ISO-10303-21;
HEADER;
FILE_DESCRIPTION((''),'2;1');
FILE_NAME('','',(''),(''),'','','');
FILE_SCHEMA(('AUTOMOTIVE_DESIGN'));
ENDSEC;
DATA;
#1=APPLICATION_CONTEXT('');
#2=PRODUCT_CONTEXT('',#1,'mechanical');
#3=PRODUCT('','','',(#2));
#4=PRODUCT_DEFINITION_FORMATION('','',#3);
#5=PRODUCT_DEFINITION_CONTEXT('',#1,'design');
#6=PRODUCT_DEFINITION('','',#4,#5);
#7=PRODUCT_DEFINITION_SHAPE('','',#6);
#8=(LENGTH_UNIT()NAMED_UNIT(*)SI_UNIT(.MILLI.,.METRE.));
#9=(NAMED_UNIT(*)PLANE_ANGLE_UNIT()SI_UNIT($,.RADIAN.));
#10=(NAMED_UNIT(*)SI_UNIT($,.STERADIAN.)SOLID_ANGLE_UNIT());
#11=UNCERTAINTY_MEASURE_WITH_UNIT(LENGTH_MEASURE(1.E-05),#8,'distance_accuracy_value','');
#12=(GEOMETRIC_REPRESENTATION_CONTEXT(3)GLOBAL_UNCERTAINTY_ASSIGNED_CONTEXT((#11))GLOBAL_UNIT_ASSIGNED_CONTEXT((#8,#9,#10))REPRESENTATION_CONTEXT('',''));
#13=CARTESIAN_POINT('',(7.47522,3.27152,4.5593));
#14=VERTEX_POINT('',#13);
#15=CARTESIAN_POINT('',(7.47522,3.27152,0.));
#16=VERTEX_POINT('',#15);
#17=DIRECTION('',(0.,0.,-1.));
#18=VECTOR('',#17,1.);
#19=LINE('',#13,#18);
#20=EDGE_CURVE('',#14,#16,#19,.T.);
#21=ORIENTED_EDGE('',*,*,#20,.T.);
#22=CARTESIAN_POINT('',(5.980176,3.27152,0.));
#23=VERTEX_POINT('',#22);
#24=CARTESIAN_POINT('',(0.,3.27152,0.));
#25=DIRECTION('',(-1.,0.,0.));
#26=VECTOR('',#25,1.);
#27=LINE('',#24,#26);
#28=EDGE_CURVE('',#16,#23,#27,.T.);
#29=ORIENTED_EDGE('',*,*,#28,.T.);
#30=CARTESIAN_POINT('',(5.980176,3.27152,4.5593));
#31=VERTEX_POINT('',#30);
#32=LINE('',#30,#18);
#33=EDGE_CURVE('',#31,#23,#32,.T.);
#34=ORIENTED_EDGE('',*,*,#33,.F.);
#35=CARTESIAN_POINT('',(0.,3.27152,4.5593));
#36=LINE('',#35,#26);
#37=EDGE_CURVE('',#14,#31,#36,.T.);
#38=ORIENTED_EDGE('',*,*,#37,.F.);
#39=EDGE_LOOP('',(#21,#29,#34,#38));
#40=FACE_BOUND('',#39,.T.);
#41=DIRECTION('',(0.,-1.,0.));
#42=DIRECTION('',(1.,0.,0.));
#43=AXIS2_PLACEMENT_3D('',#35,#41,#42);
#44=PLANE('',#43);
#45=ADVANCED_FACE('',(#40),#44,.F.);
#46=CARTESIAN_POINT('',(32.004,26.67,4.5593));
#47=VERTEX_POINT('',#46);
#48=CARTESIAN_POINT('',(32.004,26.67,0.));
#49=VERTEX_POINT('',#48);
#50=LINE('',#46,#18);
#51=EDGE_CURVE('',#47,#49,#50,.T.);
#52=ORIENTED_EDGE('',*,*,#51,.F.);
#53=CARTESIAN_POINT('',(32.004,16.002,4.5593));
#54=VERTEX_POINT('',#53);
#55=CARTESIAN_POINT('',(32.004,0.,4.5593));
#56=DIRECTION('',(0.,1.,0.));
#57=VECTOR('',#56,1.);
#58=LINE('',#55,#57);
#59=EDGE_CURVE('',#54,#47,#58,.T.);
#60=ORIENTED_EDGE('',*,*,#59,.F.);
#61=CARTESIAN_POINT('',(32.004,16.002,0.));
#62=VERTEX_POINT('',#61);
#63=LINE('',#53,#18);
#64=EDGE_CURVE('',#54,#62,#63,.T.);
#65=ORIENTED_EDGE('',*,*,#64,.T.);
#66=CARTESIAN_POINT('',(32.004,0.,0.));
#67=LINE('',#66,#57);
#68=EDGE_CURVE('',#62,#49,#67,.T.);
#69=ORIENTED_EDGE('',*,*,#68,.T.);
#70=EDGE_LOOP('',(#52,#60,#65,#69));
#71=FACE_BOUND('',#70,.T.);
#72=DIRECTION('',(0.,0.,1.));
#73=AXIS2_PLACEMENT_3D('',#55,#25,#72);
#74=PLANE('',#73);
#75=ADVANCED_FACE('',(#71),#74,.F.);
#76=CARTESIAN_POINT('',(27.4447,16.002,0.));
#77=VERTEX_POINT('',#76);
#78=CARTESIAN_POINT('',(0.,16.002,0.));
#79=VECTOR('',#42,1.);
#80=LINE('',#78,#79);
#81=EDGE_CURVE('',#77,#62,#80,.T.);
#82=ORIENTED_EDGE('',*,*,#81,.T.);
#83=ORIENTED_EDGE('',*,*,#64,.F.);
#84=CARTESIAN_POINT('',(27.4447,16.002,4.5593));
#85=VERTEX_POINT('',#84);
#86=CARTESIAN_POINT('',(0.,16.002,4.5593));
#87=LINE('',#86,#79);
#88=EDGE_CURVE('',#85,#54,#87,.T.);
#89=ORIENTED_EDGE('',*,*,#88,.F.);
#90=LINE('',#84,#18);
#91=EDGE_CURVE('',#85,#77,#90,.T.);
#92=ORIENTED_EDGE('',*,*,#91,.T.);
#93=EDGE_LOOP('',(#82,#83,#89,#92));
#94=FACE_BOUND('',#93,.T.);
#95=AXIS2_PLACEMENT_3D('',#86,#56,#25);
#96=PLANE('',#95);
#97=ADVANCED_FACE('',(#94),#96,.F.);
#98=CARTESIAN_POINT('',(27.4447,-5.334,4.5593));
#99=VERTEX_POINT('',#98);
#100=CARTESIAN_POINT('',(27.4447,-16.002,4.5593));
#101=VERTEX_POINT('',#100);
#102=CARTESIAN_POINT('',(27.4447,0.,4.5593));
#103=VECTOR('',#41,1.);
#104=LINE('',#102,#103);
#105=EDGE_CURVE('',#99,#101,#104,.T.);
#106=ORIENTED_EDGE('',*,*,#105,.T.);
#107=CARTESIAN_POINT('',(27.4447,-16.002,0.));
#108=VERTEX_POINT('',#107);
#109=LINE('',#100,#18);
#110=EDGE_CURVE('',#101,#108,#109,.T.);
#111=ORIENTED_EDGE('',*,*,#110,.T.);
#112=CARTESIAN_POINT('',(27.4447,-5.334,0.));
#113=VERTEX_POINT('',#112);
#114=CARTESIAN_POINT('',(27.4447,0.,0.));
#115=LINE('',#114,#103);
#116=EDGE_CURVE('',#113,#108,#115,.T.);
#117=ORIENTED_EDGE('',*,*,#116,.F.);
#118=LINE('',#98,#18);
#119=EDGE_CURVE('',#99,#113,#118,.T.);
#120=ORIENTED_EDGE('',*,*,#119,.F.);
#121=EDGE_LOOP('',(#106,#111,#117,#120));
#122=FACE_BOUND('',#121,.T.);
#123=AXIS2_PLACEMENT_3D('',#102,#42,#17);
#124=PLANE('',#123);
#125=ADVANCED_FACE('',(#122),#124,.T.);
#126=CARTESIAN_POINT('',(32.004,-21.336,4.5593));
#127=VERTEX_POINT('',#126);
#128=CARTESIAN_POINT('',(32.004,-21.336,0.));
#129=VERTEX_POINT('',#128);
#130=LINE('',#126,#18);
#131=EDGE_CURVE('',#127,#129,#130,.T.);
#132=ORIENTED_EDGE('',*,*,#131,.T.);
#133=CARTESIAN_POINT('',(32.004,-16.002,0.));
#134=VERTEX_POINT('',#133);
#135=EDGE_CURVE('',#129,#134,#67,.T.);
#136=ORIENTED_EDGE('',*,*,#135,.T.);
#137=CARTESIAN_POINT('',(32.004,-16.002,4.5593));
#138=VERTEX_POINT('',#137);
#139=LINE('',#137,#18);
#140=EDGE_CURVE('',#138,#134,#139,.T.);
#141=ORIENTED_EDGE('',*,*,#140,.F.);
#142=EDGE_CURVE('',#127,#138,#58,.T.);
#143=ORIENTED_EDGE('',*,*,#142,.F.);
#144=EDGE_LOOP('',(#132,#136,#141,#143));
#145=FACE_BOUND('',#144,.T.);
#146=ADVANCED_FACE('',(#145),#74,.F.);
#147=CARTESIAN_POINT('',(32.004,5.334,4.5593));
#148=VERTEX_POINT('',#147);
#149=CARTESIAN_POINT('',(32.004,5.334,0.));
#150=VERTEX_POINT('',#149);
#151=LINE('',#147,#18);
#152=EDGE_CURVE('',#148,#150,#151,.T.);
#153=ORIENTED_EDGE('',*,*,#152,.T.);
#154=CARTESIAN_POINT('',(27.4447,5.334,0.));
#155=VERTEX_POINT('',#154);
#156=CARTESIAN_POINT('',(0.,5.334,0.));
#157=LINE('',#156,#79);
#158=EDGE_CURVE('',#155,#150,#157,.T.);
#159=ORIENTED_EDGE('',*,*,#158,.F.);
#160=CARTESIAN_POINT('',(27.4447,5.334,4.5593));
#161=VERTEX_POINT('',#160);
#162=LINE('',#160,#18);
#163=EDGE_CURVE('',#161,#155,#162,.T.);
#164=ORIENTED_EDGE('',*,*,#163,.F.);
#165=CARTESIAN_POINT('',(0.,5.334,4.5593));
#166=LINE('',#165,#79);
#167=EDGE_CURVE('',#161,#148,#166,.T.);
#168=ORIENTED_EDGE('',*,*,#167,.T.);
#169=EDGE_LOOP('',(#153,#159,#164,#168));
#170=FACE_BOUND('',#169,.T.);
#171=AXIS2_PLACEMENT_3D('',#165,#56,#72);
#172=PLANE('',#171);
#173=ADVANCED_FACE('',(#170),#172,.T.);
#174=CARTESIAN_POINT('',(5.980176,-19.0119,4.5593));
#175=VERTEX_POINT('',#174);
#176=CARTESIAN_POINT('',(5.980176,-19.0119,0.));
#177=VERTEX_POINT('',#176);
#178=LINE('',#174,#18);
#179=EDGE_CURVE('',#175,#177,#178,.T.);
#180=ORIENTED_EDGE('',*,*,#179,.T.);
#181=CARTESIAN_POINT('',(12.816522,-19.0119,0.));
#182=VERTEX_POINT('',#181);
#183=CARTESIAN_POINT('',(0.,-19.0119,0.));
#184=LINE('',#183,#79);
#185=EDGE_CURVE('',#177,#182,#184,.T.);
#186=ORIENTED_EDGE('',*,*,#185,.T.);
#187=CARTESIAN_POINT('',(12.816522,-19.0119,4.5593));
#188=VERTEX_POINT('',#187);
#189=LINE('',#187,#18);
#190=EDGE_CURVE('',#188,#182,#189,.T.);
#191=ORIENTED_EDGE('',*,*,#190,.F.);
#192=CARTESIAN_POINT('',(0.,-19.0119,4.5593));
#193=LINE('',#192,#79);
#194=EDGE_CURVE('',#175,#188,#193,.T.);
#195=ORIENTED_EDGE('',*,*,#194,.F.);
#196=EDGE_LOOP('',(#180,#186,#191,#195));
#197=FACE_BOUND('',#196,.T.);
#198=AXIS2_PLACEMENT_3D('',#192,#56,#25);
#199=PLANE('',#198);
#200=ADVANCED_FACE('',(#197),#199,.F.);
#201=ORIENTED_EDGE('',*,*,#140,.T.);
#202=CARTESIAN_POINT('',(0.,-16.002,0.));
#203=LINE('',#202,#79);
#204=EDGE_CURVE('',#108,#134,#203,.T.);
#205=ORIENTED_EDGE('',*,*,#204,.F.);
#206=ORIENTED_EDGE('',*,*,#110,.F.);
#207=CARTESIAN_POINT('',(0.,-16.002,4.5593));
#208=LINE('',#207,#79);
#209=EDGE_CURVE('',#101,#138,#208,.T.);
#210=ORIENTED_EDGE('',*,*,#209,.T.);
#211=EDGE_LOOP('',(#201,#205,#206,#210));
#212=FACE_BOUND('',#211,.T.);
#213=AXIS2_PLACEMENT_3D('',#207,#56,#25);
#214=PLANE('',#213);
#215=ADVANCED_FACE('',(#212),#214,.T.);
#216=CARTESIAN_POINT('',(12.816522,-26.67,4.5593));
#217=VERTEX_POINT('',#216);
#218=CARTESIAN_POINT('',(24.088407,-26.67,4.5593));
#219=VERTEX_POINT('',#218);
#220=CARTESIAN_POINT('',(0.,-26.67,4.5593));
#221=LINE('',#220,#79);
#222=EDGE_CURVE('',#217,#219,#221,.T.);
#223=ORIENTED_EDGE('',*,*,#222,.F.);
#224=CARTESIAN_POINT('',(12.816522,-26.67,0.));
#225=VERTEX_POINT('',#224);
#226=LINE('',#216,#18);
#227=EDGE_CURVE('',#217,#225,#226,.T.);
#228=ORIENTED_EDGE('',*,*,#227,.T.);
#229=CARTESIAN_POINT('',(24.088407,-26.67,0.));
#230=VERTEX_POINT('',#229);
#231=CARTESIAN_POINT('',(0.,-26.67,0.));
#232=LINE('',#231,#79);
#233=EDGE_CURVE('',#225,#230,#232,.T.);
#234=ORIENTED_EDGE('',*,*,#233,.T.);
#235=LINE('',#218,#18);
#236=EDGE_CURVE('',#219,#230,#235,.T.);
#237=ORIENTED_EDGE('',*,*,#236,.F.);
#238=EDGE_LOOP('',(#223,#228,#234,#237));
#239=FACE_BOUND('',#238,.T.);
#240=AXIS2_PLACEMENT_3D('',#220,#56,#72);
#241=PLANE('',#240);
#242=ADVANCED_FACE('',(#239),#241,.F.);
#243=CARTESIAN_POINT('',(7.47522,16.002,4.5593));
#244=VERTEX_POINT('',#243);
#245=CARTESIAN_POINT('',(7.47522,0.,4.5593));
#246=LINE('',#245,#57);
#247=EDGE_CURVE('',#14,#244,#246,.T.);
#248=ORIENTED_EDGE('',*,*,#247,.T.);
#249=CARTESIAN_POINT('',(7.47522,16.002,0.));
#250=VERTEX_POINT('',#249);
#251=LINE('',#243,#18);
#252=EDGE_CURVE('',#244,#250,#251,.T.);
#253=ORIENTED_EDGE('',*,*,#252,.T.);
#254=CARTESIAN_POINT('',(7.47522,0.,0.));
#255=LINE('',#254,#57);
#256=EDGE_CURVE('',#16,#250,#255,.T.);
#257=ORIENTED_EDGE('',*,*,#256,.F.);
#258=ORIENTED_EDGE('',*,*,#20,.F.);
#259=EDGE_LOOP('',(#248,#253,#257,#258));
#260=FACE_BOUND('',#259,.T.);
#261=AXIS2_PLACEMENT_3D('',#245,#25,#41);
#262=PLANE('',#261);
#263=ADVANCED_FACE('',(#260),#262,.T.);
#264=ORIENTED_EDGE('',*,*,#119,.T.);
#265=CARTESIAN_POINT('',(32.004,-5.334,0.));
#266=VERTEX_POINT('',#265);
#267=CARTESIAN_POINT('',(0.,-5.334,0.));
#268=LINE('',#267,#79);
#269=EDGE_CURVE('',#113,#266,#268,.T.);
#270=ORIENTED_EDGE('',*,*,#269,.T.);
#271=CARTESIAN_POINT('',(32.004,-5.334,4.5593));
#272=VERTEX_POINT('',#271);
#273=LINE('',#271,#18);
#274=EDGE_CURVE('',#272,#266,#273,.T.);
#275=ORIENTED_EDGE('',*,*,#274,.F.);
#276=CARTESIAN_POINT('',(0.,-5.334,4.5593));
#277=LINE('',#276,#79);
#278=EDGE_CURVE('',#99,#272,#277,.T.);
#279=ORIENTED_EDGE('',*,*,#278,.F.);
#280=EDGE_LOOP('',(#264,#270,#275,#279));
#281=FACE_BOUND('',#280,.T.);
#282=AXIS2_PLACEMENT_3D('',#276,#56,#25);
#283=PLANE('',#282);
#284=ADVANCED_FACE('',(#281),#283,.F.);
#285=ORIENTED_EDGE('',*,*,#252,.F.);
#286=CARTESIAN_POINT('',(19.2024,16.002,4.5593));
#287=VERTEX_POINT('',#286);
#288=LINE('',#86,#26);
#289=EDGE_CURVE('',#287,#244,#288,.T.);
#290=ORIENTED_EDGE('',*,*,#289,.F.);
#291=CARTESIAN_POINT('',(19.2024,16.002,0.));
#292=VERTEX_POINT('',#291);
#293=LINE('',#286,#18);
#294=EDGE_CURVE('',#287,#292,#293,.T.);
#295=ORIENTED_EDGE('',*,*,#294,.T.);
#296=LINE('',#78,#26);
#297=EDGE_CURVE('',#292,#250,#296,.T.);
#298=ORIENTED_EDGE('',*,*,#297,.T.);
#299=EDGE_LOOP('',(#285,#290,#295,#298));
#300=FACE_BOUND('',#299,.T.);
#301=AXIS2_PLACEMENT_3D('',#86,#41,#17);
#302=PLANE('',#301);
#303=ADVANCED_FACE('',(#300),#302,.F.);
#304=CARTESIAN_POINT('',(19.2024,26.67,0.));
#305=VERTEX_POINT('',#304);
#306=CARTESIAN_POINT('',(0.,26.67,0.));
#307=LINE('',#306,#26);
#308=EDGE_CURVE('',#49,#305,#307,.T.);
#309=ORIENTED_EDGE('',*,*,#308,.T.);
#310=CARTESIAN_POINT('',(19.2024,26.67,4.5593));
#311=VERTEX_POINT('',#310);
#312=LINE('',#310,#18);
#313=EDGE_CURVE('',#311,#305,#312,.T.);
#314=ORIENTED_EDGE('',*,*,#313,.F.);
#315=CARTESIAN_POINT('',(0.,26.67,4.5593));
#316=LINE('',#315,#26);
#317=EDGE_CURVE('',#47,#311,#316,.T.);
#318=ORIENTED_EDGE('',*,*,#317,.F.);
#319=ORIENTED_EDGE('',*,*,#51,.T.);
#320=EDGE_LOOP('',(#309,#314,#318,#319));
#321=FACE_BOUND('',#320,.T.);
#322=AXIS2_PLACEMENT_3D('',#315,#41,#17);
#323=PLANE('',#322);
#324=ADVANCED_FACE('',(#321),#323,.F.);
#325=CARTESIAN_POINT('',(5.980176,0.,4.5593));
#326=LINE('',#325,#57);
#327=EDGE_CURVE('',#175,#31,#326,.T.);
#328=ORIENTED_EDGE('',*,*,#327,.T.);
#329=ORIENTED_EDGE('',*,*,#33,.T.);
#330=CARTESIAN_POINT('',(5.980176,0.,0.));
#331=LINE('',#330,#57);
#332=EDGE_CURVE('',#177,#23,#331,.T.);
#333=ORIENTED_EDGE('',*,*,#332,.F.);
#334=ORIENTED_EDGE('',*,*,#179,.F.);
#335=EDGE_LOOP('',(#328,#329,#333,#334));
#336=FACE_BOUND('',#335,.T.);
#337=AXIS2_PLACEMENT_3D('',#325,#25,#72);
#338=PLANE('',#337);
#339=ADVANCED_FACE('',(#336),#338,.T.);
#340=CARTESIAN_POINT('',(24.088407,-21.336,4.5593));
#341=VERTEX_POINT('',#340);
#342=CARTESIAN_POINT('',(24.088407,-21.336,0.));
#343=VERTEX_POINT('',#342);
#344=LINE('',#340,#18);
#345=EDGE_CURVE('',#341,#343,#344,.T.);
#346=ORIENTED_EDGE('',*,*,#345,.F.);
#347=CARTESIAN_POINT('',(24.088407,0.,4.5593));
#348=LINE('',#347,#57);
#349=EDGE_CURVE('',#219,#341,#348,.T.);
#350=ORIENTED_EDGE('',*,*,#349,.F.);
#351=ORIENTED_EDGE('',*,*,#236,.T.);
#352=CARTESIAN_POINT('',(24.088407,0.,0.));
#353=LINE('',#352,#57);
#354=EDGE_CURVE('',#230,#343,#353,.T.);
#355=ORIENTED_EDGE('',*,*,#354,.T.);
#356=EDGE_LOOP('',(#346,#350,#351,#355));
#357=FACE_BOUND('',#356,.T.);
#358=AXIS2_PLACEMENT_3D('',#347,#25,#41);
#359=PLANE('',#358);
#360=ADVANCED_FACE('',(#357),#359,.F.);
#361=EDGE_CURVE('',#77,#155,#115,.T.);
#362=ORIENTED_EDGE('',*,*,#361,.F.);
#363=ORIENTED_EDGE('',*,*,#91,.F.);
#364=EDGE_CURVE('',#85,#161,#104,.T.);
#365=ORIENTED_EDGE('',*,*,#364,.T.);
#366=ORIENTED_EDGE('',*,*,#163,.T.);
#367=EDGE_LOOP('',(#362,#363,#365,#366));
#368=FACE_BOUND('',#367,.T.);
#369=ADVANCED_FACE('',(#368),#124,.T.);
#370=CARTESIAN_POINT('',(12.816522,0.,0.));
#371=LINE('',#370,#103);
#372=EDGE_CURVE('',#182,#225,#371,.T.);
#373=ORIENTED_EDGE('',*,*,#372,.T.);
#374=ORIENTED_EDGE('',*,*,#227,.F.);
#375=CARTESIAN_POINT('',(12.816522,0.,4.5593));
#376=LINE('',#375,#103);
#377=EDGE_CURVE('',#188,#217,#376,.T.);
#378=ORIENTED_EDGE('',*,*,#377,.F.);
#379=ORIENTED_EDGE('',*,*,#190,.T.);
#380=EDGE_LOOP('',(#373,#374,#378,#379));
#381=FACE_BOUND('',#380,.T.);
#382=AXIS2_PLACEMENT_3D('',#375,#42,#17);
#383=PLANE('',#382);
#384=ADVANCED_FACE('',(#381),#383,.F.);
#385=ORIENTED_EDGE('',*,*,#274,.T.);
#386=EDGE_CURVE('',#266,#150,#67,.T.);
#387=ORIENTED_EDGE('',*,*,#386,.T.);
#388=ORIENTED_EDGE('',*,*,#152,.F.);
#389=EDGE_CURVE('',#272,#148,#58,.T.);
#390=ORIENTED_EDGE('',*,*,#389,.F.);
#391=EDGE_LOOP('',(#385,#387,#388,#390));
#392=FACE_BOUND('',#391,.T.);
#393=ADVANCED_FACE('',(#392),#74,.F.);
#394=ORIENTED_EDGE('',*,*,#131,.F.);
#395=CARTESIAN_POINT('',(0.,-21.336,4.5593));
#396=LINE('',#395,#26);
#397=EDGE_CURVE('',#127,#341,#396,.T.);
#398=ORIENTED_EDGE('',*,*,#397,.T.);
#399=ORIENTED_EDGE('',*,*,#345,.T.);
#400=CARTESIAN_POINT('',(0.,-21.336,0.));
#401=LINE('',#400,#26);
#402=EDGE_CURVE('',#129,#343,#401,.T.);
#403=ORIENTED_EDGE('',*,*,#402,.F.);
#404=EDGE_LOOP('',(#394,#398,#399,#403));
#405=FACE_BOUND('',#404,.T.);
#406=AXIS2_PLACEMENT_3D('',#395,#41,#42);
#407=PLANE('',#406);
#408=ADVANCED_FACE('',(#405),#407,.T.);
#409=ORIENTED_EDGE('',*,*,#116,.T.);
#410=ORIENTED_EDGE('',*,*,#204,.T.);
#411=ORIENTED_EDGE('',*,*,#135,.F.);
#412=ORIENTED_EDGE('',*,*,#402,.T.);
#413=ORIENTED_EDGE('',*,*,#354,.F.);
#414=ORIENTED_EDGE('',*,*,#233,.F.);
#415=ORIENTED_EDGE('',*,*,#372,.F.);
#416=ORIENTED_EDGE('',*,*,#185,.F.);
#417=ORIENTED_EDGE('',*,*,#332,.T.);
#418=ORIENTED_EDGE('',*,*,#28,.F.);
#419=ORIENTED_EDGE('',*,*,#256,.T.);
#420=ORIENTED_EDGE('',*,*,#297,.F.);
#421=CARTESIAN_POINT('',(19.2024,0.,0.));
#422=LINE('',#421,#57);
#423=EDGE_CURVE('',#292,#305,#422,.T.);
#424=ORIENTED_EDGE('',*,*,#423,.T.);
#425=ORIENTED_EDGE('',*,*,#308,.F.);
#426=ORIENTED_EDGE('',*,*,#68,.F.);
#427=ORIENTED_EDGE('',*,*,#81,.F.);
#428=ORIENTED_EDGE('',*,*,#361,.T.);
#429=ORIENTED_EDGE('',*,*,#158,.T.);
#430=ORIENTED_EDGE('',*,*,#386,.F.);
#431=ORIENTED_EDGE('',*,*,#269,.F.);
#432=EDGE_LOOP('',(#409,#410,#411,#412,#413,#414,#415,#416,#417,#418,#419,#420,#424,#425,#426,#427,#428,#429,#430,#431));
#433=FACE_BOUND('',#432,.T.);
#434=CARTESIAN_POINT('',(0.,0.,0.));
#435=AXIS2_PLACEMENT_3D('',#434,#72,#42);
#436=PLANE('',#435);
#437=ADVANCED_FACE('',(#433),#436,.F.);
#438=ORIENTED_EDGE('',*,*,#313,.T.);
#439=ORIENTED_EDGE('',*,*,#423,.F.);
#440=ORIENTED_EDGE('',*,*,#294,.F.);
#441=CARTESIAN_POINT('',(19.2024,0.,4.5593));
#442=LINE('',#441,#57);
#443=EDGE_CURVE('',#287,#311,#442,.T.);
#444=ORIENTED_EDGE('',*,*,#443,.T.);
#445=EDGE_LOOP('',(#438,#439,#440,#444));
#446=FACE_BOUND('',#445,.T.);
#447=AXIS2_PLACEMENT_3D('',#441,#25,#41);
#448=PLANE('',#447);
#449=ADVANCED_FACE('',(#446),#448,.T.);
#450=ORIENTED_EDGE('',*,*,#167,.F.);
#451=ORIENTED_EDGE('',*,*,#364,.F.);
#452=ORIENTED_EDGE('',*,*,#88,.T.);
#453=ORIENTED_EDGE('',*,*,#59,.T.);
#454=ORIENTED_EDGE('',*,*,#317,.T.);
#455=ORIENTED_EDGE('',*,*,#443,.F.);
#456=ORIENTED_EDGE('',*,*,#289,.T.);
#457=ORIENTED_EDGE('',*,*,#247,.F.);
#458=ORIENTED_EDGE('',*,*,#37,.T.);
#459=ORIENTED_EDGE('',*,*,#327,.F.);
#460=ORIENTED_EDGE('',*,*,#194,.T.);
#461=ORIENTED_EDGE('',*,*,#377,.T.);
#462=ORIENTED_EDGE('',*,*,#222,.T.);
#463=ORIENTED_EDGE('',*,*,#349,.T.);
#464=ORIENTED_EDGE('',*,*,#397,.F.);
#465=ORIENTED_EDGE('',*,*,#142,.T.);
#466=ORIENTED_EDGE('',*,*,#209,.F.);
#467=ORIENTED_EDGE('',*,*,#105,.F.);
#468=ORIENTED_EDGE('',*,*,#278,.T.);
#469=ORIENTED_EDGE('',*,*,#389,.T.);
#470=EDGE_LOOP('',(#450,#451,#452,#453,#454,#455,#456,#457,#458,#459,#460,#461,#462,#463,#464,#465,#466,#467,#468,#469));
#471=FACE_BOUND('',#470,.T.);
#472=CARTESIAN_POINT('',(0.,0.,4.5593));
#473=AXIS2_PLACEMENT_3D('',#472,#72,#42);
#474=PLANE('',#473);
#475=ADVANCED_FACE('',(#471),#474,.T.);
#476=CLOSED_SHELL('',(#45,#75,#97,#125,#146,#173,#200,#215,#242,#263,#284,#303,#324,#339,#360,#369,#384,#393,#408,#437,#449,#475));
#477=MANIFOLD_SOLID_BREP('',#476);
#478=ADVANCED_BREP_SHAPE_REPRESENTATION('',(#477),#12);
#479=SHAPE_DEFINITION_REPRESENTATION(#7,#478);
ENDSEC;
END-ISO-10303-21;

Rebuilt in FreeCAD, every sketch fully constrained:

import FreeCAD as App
import Part
import Sketcher

V = App.Vector
Q = App.Units.Quantity


def add_polygon(sketch, points):
    """Adds a closed chain of lines whose ends are joined by coincident constraints."""
    first, n = sketch.GeometryCount, len(points)
    for a, b in zip(points, points[1:] + points[:1]):
        sketch.addGeometry(Part.LineSegment(App.Vector(*a, 0), App.Vector(*b, 0)), False)
    for i in range(n):
        sketch.addConstraint(Sketcher.Constraint("Coincident", first + i, 2, first + (i + 1) % n, 1))

doc = App.newDocument("Part")
body = doc.addObject("PartDesign::Body", "Body")

sketch1 = doc.addObject("Sketcher::SketchObject", "Sketch")
body.addObject(sketch1)
sketch1.AttachmentSupport = (doc.XY_Plane, [""])
sketch1.MapMode = "FlatFace"
add_polygon(sketch1, [(24.1, -21.3), (32, -21.3), (32, -16), (27.4, -16), (27.4, -5.3), (32, -5.3), (32, 5.3), (27.4, 5.3), (27.4, 16), (32, 16), (32, 26.7), (19.2, 26.7), (19.2, 16), (7.5, 16), (7.5, 3.3), (6, 3.3), (6, -19), (12.8, -19), (12.8, -26.7), (24.1, -26.7)])
sketch1.addConstraint([
    Sketcher.Constraint("Horizontal", 0),
    Sketcher.Constraint("Vertical", 1),
    Sketcher.Constraint("Horizontal", 2),
    Sketcher.Constraint("Vertical", 3),
    Sketcher.Constraint("Horizontal", 4),
    Sketcher.Constraint("Vertical", 5),
    Sketcher.Constraint("Horizontal", 6),
    Sketcher.Constraint("Vertical", 7),
    Sketcher.Constraint("Horizontal", 8),
    Sketcher.Constraint("Vertical", 9),
    Sketcher.Constraint("Horizontal", 10),
    Sketcher.Constraint("Vertical", 11),
    Sketcher.Constraint("Horizontal", 12),
    Sketcher.Constraint("Vertical", 13),
    Sketcher.Constraint("Horizontal", 14),
    Sketcher.Constraint("Vertical", 15),
    Sketcher.Constraint("Horizontal", 16),
    Sketcher.Constraint("Vertical", 17),
    Sketcher.Constraint("Horizontal", 18),
    Sketcher.Constraint("Vertical", 19),
    Sketcher.Constraint("Symmetric", 3, 2, 6, 2, -1),
    Sketcher.Constraint("Symmetric", 1, 2, 8, 2, -1),
    Sketcher.Constraint("Horizontal", 8, 2, 11, 2),
    Sketcher.Constraint("Vertical", 1, 2, 4, 2),
    Sketcher.Constraint("Equal", 3, 5),
    Sketcher.Constraint("Equal", 7, 9),
    Sketcher.Constraint("Equal", 1, 19),
    Sketcher.Constraint("DistanceY", 1, 1, 1, 2, Q("0.21 in")),
    Sketcher.Constraint("DistanceY", 3, 1, 3, 2, Q("0.42 in")),
    Sketcher.Constraint("DistanceX", 10, 2, 10, 1, Q("0.504 in")),
    Sketcher.Constraint("DistanceX", -1, 1, 0, 2, Q("1.26 in")),
    Sketcher.Constraint("DistanceX", 2, 2, 2, 1, Q("0.1795 in")),
    Sketcher.Constraint("DistanceX", 12, 2, 12, 1, Q("0.4617 in")),
    Sketcher.Constraint("DistanceY", 13, 2, 13, 1, Q("0.5012 in")),
    Sketcher.Constraint("DistanceY", 15, 2, 15, 1, Q("0.8773 in")),
    Sketcher.Constraint("DistanceX", 0, 1, 0, 2, 7.915592),
    Sketcher.Constraint("DistanceX", 14, 2, 14, 1, 1.495044),
    Sketcher.Constraint("DistanceX", 16, 1, 16, 2, 6.836346),
])
pad1 = doc.addObject("PartDesign::Pad", "Pad")
body.addObject(pad1)
pad1.Profile = sketch1
pad1.Length = Q("0.1795 in")

doc.recompute()
